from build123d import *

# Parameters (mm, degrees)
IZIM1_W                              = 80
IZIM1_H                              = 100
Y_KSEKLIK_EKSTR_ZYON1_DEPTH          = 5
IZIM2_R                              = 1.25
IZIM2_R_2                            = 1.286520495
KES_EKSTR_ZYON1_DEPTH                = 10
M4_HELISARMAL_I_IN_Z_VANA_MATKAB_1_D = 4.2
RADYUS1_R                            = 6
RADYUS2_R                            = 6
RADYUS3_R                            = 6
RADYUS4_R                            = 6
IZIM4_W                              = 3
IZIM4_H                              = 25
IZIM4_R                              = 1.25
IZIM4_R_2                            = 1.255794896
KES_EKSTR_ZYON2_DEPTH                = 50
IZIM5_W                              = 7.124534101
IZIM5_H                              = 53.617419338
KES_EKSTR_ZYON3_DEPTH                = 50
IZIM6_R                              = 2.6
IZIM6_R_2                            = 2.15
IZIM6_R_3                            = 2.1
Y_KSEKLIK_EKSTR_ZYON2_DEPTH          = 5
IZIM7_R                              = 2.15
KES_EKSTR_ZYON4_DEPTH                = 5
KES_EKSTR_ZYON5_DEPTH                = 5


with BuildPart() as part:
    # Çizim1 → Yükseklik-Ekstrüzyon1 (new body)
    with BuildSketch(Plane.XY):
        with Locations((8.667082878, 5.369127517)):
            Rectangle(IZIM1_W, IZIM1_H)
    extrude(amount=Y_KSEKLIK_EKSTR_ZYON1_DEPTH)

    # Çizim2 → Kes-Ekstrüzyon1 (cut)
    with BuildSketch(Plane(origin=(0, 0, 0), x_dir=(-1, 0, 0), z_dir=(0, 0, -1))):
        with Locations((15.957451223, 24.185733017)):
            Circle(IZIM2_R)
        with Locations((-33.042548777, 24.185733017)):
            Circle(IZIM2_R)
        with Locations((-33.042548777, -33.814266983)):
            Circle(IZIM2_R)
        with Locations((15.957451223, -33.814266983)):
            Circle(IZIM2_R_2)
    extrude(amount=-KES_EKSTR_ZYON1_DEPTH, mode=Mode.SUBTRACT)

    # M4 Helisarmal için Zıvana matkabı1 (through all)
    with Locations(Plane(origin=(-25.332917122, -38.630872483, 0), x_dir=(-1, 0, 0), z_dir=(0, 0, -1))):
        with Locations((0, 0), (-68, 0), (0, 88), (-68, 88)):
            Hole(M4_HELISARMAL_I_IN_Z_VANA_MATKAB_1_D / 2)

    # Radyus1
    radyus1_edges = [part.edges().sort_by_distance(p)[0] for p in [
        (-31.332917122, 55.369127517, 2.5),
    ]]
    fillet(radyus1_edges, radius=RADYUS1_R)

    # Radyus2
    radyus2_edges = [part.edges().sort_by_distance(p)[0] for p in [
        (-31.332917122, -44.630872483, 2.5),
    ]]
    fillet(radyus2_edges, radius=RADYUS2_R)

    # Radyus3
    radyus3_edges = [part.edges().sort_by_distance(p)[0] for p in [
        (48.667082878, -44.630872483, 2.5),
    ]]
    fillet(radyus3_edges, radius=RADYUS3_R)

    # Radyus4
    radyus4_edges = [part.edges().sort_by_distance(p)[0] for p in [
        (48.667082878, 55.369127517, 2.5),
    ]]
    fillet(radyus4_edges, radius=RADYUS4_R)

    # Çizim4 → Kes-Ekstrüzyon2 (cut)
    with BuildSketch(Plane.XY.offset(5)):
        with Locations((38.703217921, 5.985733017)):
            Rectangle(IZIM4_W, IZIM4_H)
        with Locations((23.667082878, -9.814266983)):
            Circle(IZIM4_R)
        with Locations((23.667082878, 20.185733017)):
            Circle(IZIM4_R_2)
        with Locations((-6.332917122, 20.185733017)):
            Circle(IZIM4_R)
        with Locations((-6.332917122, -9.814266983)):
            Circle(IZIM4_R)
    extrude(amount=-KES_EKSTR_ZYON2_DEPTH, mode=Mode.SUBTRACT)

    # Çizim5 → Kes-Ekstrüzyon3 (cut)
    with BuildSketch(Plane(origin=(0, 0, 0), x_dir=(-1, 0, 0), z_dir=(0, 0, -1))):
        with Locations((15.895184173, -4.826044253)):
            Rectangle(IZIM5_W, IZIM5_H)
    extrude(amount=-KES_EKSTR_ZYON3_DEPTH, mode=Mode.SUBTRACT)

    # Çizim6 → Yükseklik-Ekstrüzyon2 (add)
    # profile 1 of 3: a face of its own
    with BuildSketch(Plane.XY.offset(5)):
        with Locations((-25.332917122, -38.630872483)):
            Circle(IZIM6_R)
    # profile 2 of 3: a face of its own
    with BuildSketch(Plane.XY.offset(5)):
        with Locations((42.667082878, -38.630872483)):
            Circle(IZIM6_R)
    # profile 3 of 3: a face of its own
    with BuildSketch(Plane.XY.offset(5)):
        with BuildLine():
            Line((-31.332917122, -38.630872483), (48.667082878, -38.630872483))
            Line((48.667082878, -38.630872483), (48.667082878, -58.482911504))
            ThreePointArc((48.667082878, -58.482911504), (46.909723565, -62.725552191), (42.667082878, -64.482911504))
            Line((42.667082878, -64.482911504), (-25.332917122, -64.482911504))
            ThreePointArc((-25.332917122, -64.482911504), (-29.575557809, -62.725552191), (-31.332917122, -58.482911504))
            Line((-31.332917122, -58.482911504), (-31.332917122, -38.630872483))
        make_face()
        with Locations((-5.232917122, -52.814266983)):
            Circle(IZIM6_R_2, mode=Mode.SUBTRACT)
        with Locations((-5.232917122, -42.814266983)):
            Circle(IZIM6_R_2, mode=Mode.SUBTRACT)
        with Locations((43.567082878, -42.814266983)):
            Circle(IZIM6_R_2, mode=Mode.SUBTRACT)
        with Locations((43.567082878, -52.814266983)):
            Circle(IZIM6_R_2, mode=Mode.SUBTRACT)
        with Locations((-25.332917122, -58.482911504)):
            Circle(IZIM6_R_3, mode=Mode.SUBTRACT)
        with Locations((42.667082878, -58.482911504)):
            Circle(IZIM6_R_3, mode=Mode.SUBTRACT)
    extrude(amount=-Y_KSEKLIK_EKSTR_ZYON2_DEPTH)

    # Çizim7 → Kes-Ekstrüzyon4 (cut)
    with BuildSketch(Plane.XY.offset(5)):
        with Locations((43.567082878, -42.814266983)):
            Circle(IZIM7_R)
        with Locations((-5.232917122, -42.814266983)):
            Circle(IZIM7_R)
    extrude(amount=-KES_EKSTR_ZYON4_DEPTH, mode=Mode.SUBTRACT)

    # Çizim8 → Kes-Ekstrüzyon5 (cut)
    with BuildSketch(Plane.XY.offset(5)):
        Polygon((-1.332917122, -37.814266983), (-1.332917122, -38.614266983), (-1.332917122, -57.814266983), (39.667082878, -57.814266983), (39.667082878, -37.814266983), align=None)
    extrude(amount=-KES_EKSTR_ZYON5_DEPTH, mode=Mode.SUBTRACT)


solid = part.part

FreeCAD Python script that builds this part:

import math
import FreeCAD as App
import Part
import Sketcher
from FreeCAD import Vector


def edges_at(feature, points):
    """Names of the edges that pass closest to the given points."""
    edges = feature.Shape.Edges
    near = lambda p: min(range(len(edges)), key=lambda i: edges[i].distToShape(Part.Vertex(*p))[0])
    return sorted({f"Edge{near(p) + 1}" for p in points})

doc = App.newDocument("Part")
body = doc.addObject("PartDesign::Body", "Body")

# Sketch on XY plane
sketch1 = body.newObject("Sketcher::SketchObject", "Sketch")
sketch1.AttachmentSupport = (doc.getObject("XY_Plane"), [""])
sketch1.MapMode = "FlatFace"
sketch1.addGeometry(Part.LineSegment(Vector(-31.332917, 55.369128, 0), Vector(-31.332917, -44.630872, 0)), False)
sketch1.addGeometry(Part.LineSegment(Vector(-31.332917, -44.630872, 0), Vector(48.667083, -44.630872, 0)), False)
sketch1.addGeometry(Part.LineSegment(Vector(48.667083, -44.630872, 0), Vector(48.667083, 55.369128, 0)), False)
sketch1.addGeometry(Part.LineSegment(Vector(48.667083, 55.369128, 0), Vector(-31.332917, 55.369128, 0)), False)
sketch1.addConstraint(Sketcher.Constraint("Coincident", 0, 2, 1, 1))
sketch1.addConstraint(Sketcher.Constraint("Coincident", 1, 2, 2, 1))
sketch1.addConstraint(Sketcher.Constraint("Coincident", 2, 2, 3, 1))
sketch1.addConstraint(Sketcher.Constraint("Coincident", 3, 2, 0, 1))
sketch1.addConstraint(Sketcher.Constraint("Vertical", 0))
sketch1.addConstraint(Sketcher.Constraint("Horizontal", 1))
sketch1.addConstraint(Sketcher.Constraint("Vertical", 2))
sketch1.addConstraint(Sketcher.Constraint("Horizontal", 3))
sketch1.addConstraint(Sketcher.Constraint("DistanceX", 1, 1, 1, 2, 80.0))
sketch1.addConstraint(Sketcher.Constraint("DistanceY", 0, 2, 0, 1, 100.0))
sketch1.addConstraint(Sketcher.Constraint("DistanceX", 0, 2, -1, 1, 31.332917))
sketch1.addConstraint(Sketcher.Constraint("DistanceY", 0, 2, -1, 1, 44.630872))
pad1 = body.newObject("PartDesign::Pad", "Pad")
pad1.Profile = sketch1
pad1.Length = 5

# Sketch on XY plane
sketch2 = body.newObject("Sketcher::SketchObject", "Sketch001")
sketch2.AttachmentSupport = (doc.getObject("XY_Plane"), [""])
sketch2.MapMode = "FlatFace"
sketch2.addGeometry(Part.Circle(Vector(-15.957451, 24.185733, 0), Vector(0, 0, 1), 1.25), False)
sketch2.addGeometry(Part.Circle(Vector(33.042549, 24.185733, 0), Vector(0, 0, 1), 1.25), False)
sketch2.addGeometry(Part.Circle(Vector(33.042549, -33.814267, 0), Vector(0, 0, 1), 1.25), False)
sketch2.addGeometry(Part.Circle(Vector(-15.957451, -33.814267, 0), Vector(0, 0, 1), 1.28652), False)
sketch2.addConstraint(Sketcher.Constraint("Equal", 0, 1))
sketch2.addConstraint(Sketcher.Constraint("Equal", 1, 2))
sketch2.addConstraint(Sketcher.Constraint("Horizontal", 0, 3, 1, 3))
sketch2.addConstraint(Sketcher.Constraint("Horizontal", 2, 3, 3, 3))
sketch2.addConstraint(Sketcher.Constraint("Vertical", 1, 3, 2, 3))
sketch2.addConstraint(Sketcher.Constraint("Vertical", 0, 3, 3, 3))
sketch2.addConstraint(Sketcher.Constraint("Diameter", 0, 2.5))
sketch2.addConstraint(Sketcher.Constraint("DistanceX", 0, 3, 1, 3, 49.0))
sketch2.addConstraint(Sketcher.Constraint("DistanceY", 2, 3, 1, 3, 58.0))
sketch2.addConstraint(Sketcher.Constraint("Diameter", 3, 2.573041))
sketch2.addConstraint(Sketcher.Constraint("DistanceX", 0, 3, -1, 1, 15.957451))
sketch2.addConstraint(Sketcher.Constraint("DistanceY", -1, 1, 0, 3, 24.185733))
pocket1 = body.newObject("PartDesign::Pocket", "Pocket")
pocket1.Profile = sketch2
pocket1.Length = 10
pocket1.Reversed = True

# Sketch on XY plane
sketch3 = body.newObject("Sketcher::SketchObject", "Sketch002")
sketch3.AttachmentSupport = (doc.getObject("XY_Plane"), [""])
sketch3.MapMode = "FlatFace"
sketch3.addGeometry(Part.Circle(Vector(-25.332917, -38.630872, 0), Vector(0, 0, 1), 2.1), False)
sketch3.addGeometry(Part.Circle(Vector(42.667083, -38.630872, 0), Vector(0, 0, 1), 2.1), False)
sketch3.addGeometry(Part.Circle(Vector(-25.332917, 49.369128, 0), Vector(0, 0, 1), 2.1), False)
sketch3.addGeometry(Part.Circle(Vector(42.667083, 49.369128, 0), Vector(0, 0, 1), 2.1), False)
sketch3.addConstraint(Sketcher.Constraint("Equal", 0, 1))
sketch3.addConstraint(Sketcher.Constraint("Equal", 1, 2))
sketch3.addConstraint(Sketcher.Constraint("Equal", 2, 3))
sketch3.addConstraint(Sketcher.Constraint("Horizontal", 0, 3, 1, 3))
sketch3.addConstraint(Sketcher.Constraint("Horizontal", 2, 3, 3, 3))
sketch3.addConstraint(Sketcher.Constraint("Vertical", 0, 3, 2, 3))
sketch3.addConstraint(Sketcher.Constraint("Vertical", 1, 3, 3, 3))
sketch3.addConstraint(Sketcher.Constraint("Diameter", 0, 4.2))
sketch3.addConstraint(Sketcher.Constraint("DistanceX", 0, 3, 1, 3, 68.0))
sketch3.addConstraint(Sketcher.Constraint("DistanceY", 0, 3, 2, 3, 88.0))
sketch3.addConstraint(Sketcher.Constraint("DistanceX", 0, 3, -1, 1, 25.332917))
sketch3.addConstraint(Sketcher.Constraint("DistanceY", 0, 3, -1, 1, 38.630872))
doc.recompute()
hole = body.newObject("PartDesign::Hole", "Hole")
hole.Profile = sketch3
hole.ThreadType = "None"
hole.Diameter = 4.2
hole.DepthType = "ThroughAll"
hole.Reversed = True
doc.recompute()

fillet = body.newObject("PartDesign::Fillet", "Fillet")
fillet.Base = (hole, edges_at(hole, [(-31.333, 55.369, 2.5)]))
fillet.Radius = 6
doc.recompute()

fillet2 = body.newObject("PartDesign::Fillet", "Fillet001")
fillet2.Base = (fillet, edges_at(fillet, [(-31.333, -44.631, 2.5)]))
fillet2.Radius = 6
doc.recompute()

fillet3 = body.newObject("PartDesign::Fillet", "Fillet002")
fillet3.Base = (fillet2, edges_at(fillet2, [(48.667, -44.631, 2.5)]))
fillet3.Radius = 6
doc.recompute()

fillet4 = body.newObject("PartDesign::Fillet", "Fillet003")
fillet4.Base = (fillet3, edges_at(fillet3, [(48.667, 55.369, 2.5)]))
fillet4.Radius = 6

# Sketch on XY plane
sketch4 = body.newObject("Sketcher::SketchObject", "Sketch003")
sketch4.AttachmentSupport = (doc.getObject("XY_Plane"), [""])
sketch4.MapMode = "FlatFace"
sketch4.AttachmentOffset = App.Placement(Vector(0, 0, 5), App.Rotation())
sketch4.addGeometry(Part.LineSegment(Vector(37.203218, 18.485733, 0), Vector(37.203218, -6.514267, 0)), False)
sketch4.addGeometry(Part.LineSegment(Vector(37.203218, -6.514267, 0), Vector(40.203218, -6.514267, 0)), False)
sketch4.addGeometry(Part.LineSegment(Vector(40.203218, -6.514267, 0), Vector(40.203218, 18.485733, 0)), False)
sketch4.addGeometry(Part.LineSegment(Vector(40.203218, 18.485733, 0), Vector(37.203218, 18.485733, 0)), False)
sketch4.addGeometry(Part.Circle(Vector(23.667083, -9.814267, 0), Vector(0, 0, 1), 1.25), False)
sketch4.addGeometry(Part.Circle(Vector(23.667083, 20.185733, 0), Vector(0, 0, 1), 1.255795), False)
sketch4.addGeometry(Part.Circle(Vector(-6.332917, 20.185733, 0), Vector(0, 0, 1), 1.25), False)
sketch4.addGeometry(Part.Circle(Vector(-6.332917, -9.814267, 0), Vector(0, 0, 1), 1.25), False)
sketch4.addConstraint(Sketcher.Constraint("Coincident", 0, 2, 1, 1))
sketch4.addConstraint(Sketcher.Constraint("Coincident", 1, 2, 2, 1))
sketch4.addConstraint(Sketcher.Constraint("Coincident", 2, 2, 3, 1))
sketch4.addConstraint(Sketcher.Constraint("Coincident", 3, 2, 0, 1))
sketch4.addConstraint(Sketcher.Constraint("Vertical", 0))
sketch4.addConstraint(Sketcher.Constraint("Horizontal", 1))
sketch4.addConstraint(Sketcher.Constraint("Vertical", 2))
sketch4.addConstraint(Sketcher.Constraint("Horizontal", 3))
sketch4.addConstraint(Sketcher.Constraint("Equal", 4, 6))
sketch4.addConstraint(Sketcher.Constraint("Equal", 6, 7))
sketch4.addConstraint(Sketcher.Constraint("Horizontal", 5, 3, 6, 3))
sketch4.addConstraint(Sketcher.Constraint("Horizontal", 4, 3, 7, 3))
sketch4.addConstraint(Sketcher.Constraint("Vertical", 4, 3, 5, 3))
sketch4.addConstraint(Sketcher.Constraint("Vertical", 6, 3, 7, 3))
sketch4.addConstraint(Sketcher.Constraint("Diameter", 4, 2.5))
sketch4.addConstraint(Sketcher.Constraint("DistanceX", 1, 1, 1, 2, 3.0))
sketch4.addConstraint(Sketcher.Constraint("DistanceY", 0, 2, 0, 1, 25.0))
sketch4.addConstraint(Sketcher.Constraint("DistanceY", 4, 3, 5, 3, 30.0))
sketch4.addConstraint(Sketcher.Constraint("DistanceX", 6, 3, 5, 3, 30.0))
sketch4.addConstraint(Sketcher.Constraint("DistanceY", 4, 3, 0, 2, 3.3))
sketch4.addConstraint(Sketcher.Constraint("Diameter", 5, 2.51159))
sketch4.addConstraint(Sketcher.Constraint("DistanceX", -1, 1, 4, 3, 23.667083))
sketch4.addConstraint(Sketcher.Constraint("DistanceY", 4, 3, -1, 1, 9.814267))
sketch4.addConstraint(Sketcher.Constraint("DistanceX", -1, 1, 0, 2, 37.203218))
pocket2 = body.newObject("PartDesign::Pocket", "Pocket001")
pocket2.Profile = sketch4
pocket2.Length = 50

# Sketch on XY plane
sketch5 = body.newObject("Sketcher::SketchObject", "Sketch004")
sketch5.AttachmentSupport = (doc.getObject("XY_Plane"), [""])
sketch5.MapMode = "FlatFace"
sketch5.addGeometry(Part.LineSegment(Vector(-12.332917, 21.982665, 0), Vector(-12.332917, -31.634754, 0)), False)
sketch5.addGeometry(Part.LineSegment(Vector(-12.332917, -31.634754, 0), Vector(-19.457451, -31.634754, 0)), False)
sketch5.addGeometry(Part.LineSegment(Vector(-19.457451, -31.634754, 0), Vector(-19.457451, 21.982665, 0)), False)
sketch5.addGeometry(Part.LineSegment(Vector(-19.457451, 21.982665, 0), Vector(-12.332917, 21.982665, 0)), False)
sketch5.addConstraint(Sketcher.Constraint("Coincident", 0, 2, 1, 1))
sketch5.addConstraint(Sketcher.Constraint("Coincident", 1, 2, 2, 1))
sketch5.addConstraint(Sketcher.Constraint("Coincident", 2, 2, 3, 1))
sketch5.addConstraint(Sketcher.Constraint("Coincident", 3, 2, 0, 1))
sketch5.addConstraint(Sketcher.Constraint("Vertical", 0))
sketch5.addConstraint(Sketcher.Constraint("Horizontal", 1))
sketch5.addConstraint(Sketcher.Constraint("Vertical", 2))
sketch5.addConstraint(Sketcher.Constraint("Horizontal", 3))
sketch5.addConstraint(Sketcher.Constraint("DistanceY", 0, 2, 0, 1, 53.617419))
sketch5.addConstraint(Sketcher.Constraint("DistanceX", 1, 2, 1, 1, 7.124534))
sketch5.addConstraint(Sketcher.Constraint("DistanceX", 1, 2, -1, 1, 19.457451))
sketch5.addConstraint(Sketcher.Constraint("DistanceY", 0, 2, -1, 1, 31.634754))
pocket3 = body.newObject("PartDesign::Pocket", "Pocket002")
pocket3.Profile = sketch5
pocket3.Length = 50
pocket3.Reversed = True

# Sketch on XY plane
sketch6 = body.newObject("Sketcher::SketchObject", "Sketch005")
sketch6.AttachmentSupport = (doc.getObject("XY_Plane"), [""])
sketch6.MapMode = "FlatFace"
sketch6.AttachmentOffset = App.Placement(Vector(0, 0, 5), App.Rotation())
sketch6.addGeometry(Part.ArcOfCircle(Part.Circle(Vector(-25.332917, -38.630872, 0), Vector(0, 0, 1), 2.6), math.radians(0), math.radians(180)), False)
sketch6.addGeometry(Part.LineSegment(Vector(-27.932917, -38.630872, 0), Vector(-31.332917, -38.630872, 0)), False)
sketch6.addGeometry(Part.LineSegment(Vector(-31.332917, -38.630872, 0), Vector(-31.332917, -58.482912, 0)), False)
sketch6.addGeometry(Part.ArcOfCircle(Part.Circle(Vector(-25.332917, -58.482912, 0), Vector(0, 0, 1), 6), math.radians(180), math.radians(270)), False)
sketch6.addGeometry(Part.LineSegment(Vector(-25.332917, -64.482912, 0), Vector(42.667083, -64.482912, 0)), False)
sketch6.addGeometry(Part.ArcOfCircle(Part.Circle(Vector(42.667083, -58.482912, 0), Vector(0, 0, 1), 6), math.radians(-90), math.radians(0)), False)
sketch6.addGeometry(Part.LineSegment(Vector(48.667083, -58.482912, 0), Vector(48.667083, -38.630872, 0)), False)
sketch6.addGeometry(Part.LineSegment(Vector(48.667083, -38.630872, 0), Vector(45.267083, -38.630872, 0)), False)
sketch6.addGeometry(Part.ArcOfCircle(Part.Circle(Vector(42.667083, -38.630872, 0), Vector(0, 0, 1), 2.6), math.radians(0), math.radians(180)), False)
sketch6.addGeometry(Part.LineSegment(Vector(40.067083, -38.630872, 0), Vector(-22.732917, -38.630872, 0)), False)
sketch6.addGeometry(Part.ArcOfCircle(Part.Circle(Vector(43.567083, -42.814267, 0), Vector(0, 0, 1), 2.15), math.radians(130.622417), math.radians(433.660271)), False)
sketch6.addGeometry(Part.ArcOfCircle(Part.Circle(Vector(42.667083, -38.630872, 0), Vector(0, 0, 1), 2.6), math.radians(-101.083069), math.radians(-54.634243)), False)
sketch6.addGeometry(Part.Circle(Vector(-5.232917, -42.814267, 0), Vector(0, 0, 1), 2.15), False)
sketch6.addGeometry(Part.Circle(Vector(42.667083, -58.482912, 0), Vector(0, 0, 1), 2.1), False)
sketch6.addGeometry(Part.Circle(Vector(43.567083, -52.814267, 0), Vector(0, 0, 1), 2.15), False)
sketch6.addGeometry(Part.Circle(Vector(-25.332917, -58.482912, 0), Vector(0, 0, 1), 2.1), False)
sketch6.addGeometry(Part.Circle(Vector(-5.232917, -52.814267, 0), Vector(0, 0, 1), 2.15), False)
sketch6.addConstraint(Sketcher.Constraint("Coincident", 0, 2, 1, 1))
sketch6.addConstraint(Sketcher.Constraint("Coincident", 1, 2, 2, 1))
sketch6.addConstraint(Sketcher.Constraint("Tangent", 2, 2, 3, 1))
sketch6.addConstraint(Sketcher.Constraint("Tangent", 3, 2, 4, 1))
sketch6.addConstraint(Sketcher.Constraint("Tangent", 4, 2, 5, 1))
sketch6.addConstraint(Sketcher.Constraint("Tangent", 5, 2, 6, 1))
sketch6.addConstraint(Sketcher.Constraint("Coincident", 6, 2, 7, 1))
sketch6.addConstraint(Sketcher.Constraint("Coincident", 7, 2, 8, 1))
sketch6.addConstraint(Sketcher.Constraint("Coincident", 8, 2, 9, 1))
sketch6.addConstraint(Sketcher.Constraint("Coincident", 9, 2, 0, 1))
sketch6.addConstraint(Sketcher.Constraint("Coincident", 10, 1, 11, 1))
sketch6.addConstraint(Sketcher.Constraint("Coincident", 11, 2, 10, 2))
sketch6.addConstraint(Sketcher.Constraint("Horizontal", 1))
sketch6.addConstraint(Sketcher.Constraint("Vertical", 2))
sketch6.addConstraint(Sketcher.Constraint("Horizontal", 4))
sketch6.addConstraint(Sketcher.Constraint("Vertical", 6))
sketch6.addConstraint(Sketcher.Constraint("Horizontal", 7))
sketch6.addConstraint(Sketcher.Constraint("Horizontal", 9))
sketch6.addConstraint(Sketcher.Constraint("Coincident", 11, 3, 8, 3))
sketch6.addConstraint(Sketcher.Constraint("Coincident", 13, 3, 5, 3))
sketch6.addConstraint(Sketcher.Constraint("Coincident", 15, 3, 3, 3))
sketch6.addConstraint(Sketcher.Constraint("Equal", 3, 5))
sketch6.addConstraint(Sketcher.Constraint("Equal", 0, 8))
sketch6.addConstraint(Sketcher.Constraint("Equal", 8, 11))
sketch6.addConstraint(Sketcher.Constraint("Equal", 10, 12))
sketch6.addConstraint(Sketcher.Constraint("Equal", 12, 14))
sketch6.addConstraint(Sketcher.Constraint("Equal", 13, 15))
sketch6.addConstraint(Sketcher.Constraint("Equal", 14, 16))
sketch6.addConstraint(Sketcher.Constraint("Horizontal", 0, 3, 8, 3))
sketch6.addConstraint(Sketcher.Constraint("Horizontal", 10, 3, 12, 3))
sketch6.addConstraint(Sketcher.Constraint("Horizontal", 14, 3, 16, 3))
sketch6.addConstraint(Sketcher.Constraint("Horizontal", 11, 3, 0, 2))
sketch6.addConstraint(Sketcher.Constraint("Horizontal", 1, 2, 6, 2))
sketch6.addConstraint(Sketcher.Constraint("Horizontal", 7, 2, 8, 2))
sketch6.addConstraint(Sketcher.Constraint("Vertical", 0, 3, 3, 3))
sketch6.addConstraint(Sketcher.Constraint("Vertical", 5, 3, 8, 3))
sketch6.addConstraint(Sketcher.Constraint("Vertical", 10, 3, 14, 3))
sketch6.addConstraint(Sketcher.Constraint("Vertical", 12, 3, 16, 3))
sketch6.addConstraint(Sketcher.Constraint("Radius", 3, 6.0))
sketch6.addConstraint(Sketcher.Constraint("Diameter", 12, 4.3))
sketch6.addConstraint(Sketcher.Constraint("Diameter", 13, 4.2))
sketch6.addConstraint(Sketcher.Constraint("Radius", 0, 2.6))
sketch6.addConstraint(Sketcher.Constraint("DistanceX", 4, 1, 4, 2, 68.0))
sketch6.addConstraint(Sketcher.Constraint("DistanceY", 14, 3, 10, 3, 10.0))
sketch6.addConstraint(Sketcher.Constraint("DistanceX", 8, 3, 10, 3, 0.9))
sketch6.addConstraint(Sketcher.Constraint("DistanceX", 0, 3, 12, 3, 20.1))
sketch6.addConstraint(Sketcher.Constraint("DistanceY", 2, 2, 2, 1, 19.852039))
sketch6.addConstraint(Sketcher.Constraint("DistanceY", 3, 3, -1, 1, 58.482912))
sketch6.addConstraint(Sketcher.Constraint("DistanceX", -1, 1, 10, 1, 42.16728))
sketch6.addConstraint(Sketcher.Constraint("DistanceY", 10, 1, -1, 1, 41.182381))
pad2 = body.newObject("PartDesign::Pad", "Pad001")
pad2.Profile = sketch6
pad2.Length = 5
pad2.Reversed = True

# Sketch on XY plane
sketch7 = body.newObject("Sketcher::SketchObject", "Sketch006")
sketch7.AttachmentSupport = (doc.getObject("XY_Plane"), [""])
sketch7.MapMode = "FlatFace"
sketch7.AttachmentOffset = App.Placement(Vector(0, 0, 5), App.Rotation())
sketch7.addGeometry(Part.Circle(Vector(43.567083, -42.814267, 0), Vector(0, 0, 1), 2.15), False)
sketch7.addGeometry(Part.Circle(Vector(-5.232917, -42.814267, 0), Vector(0, 0, 1), 2.15), False)
sketch7.addConstraint(Sketcher.Constraint("Equal", 0, 1))
sketch7.addConstraint(Sketcher.Constraint("Horizontal", 0, 3, 1, 3))
sketch7.addConstraint(Sketcher.Constraint("Diameter", 0, 4.3))
sketch7.addConstraint(Sketcher.Constraint("DistanceX", 1, 3, 0, 3, 48.8))
sketch7.addConstraint(Sketcher.Constraint("DistanceX", -1, 1, 0, 3, 43.567083))
sketch7.addConstraint(Sketcher.Constraint("DistanceY", 0, 3, -1, 1, 42.814267))
pocket4 = body.newObject("PartDesign::Pocket", "Pocket003")
pocket4.Profile = sketch7
pocket4.Length = 5

# Sketch on XY plane
sketch8 = body.newObject("Sketcher::SketchObject", "Sketch007")
sketch8.AttachmentSupport = (doc.getObject("XY_Plane"), [""])
sketch8.MapMode = "FlatFace"
sketch8.AttachmentOffset = App.Placement(Vector(0, 0, 5), App.Rotation())
sketch8.addGeometry(Part.LineSegment(Vector(-1.332917, -37.814267, 0), Vector(-1.332917, -57.814267, 0)), False)
sketch8.addGeometry(Part.LineSegment(Vector(-1.332917, -57.814267, 0), Vector(39.667083, -57.814267, 0)), False)
sketch8.addGeometry(Part.LineSegment(Vector(39.667083, -57.814267, 0), Vector(39.667083, -37.814267, 0)), False)
sketch8.addGeometry(Part.LineSegment(Vector(39.667083, -37.814267, 0), Vector(-1.332917, -37.814267, 0)), False)
sketch8.addConstraint(Sketcher.Constraint("Coincident", 0, 2, 1, 1))
sketch8.addConstraint(Sketcher.Constraint("Coincident", 1, 2, 2, 1))
sketch8.addConstraint(Sketcher.Constraint("Coincident", 2, 2, 3, 1))
sketch8.addConstraint(Sketcher.Constraint("Coincident", 3, 2, 0, 1))
sketch8.addConstraint(Sketcher.Constraint("Vertical", 0))
sketch8.addConstraint(Sketcher.Constraint("Horizontal", 1))
sketch8.addConstraint(Sketcher.Constraint("Vertical", 2))
sketch8.addConstraint(Sketcher.Constraint("Horizontal", 3))
sketch8.addConstraint(Sketcher.Constraint("DistanceX", 1, 1, 1, 2, 41.0))
sketch8.addConstraint(Sketcher.Constraint("DistanceY", 0, 2, 0, 1, 20.0))
sketch8.addConstraint(Sketcher.Constraint("DistanceX", 0, 2, -1, 1, 1.332917))
sketch8.addConstraint(Sketcher.Constraint("DistanceY", 0, 2, -1, 1, 57.814267))
pocket5 = body.newObject("PartDesign::Pocket", "Pocket004")
pocket5.Profile = sketch8
pocket5.Length = 5

doc.recompute()
